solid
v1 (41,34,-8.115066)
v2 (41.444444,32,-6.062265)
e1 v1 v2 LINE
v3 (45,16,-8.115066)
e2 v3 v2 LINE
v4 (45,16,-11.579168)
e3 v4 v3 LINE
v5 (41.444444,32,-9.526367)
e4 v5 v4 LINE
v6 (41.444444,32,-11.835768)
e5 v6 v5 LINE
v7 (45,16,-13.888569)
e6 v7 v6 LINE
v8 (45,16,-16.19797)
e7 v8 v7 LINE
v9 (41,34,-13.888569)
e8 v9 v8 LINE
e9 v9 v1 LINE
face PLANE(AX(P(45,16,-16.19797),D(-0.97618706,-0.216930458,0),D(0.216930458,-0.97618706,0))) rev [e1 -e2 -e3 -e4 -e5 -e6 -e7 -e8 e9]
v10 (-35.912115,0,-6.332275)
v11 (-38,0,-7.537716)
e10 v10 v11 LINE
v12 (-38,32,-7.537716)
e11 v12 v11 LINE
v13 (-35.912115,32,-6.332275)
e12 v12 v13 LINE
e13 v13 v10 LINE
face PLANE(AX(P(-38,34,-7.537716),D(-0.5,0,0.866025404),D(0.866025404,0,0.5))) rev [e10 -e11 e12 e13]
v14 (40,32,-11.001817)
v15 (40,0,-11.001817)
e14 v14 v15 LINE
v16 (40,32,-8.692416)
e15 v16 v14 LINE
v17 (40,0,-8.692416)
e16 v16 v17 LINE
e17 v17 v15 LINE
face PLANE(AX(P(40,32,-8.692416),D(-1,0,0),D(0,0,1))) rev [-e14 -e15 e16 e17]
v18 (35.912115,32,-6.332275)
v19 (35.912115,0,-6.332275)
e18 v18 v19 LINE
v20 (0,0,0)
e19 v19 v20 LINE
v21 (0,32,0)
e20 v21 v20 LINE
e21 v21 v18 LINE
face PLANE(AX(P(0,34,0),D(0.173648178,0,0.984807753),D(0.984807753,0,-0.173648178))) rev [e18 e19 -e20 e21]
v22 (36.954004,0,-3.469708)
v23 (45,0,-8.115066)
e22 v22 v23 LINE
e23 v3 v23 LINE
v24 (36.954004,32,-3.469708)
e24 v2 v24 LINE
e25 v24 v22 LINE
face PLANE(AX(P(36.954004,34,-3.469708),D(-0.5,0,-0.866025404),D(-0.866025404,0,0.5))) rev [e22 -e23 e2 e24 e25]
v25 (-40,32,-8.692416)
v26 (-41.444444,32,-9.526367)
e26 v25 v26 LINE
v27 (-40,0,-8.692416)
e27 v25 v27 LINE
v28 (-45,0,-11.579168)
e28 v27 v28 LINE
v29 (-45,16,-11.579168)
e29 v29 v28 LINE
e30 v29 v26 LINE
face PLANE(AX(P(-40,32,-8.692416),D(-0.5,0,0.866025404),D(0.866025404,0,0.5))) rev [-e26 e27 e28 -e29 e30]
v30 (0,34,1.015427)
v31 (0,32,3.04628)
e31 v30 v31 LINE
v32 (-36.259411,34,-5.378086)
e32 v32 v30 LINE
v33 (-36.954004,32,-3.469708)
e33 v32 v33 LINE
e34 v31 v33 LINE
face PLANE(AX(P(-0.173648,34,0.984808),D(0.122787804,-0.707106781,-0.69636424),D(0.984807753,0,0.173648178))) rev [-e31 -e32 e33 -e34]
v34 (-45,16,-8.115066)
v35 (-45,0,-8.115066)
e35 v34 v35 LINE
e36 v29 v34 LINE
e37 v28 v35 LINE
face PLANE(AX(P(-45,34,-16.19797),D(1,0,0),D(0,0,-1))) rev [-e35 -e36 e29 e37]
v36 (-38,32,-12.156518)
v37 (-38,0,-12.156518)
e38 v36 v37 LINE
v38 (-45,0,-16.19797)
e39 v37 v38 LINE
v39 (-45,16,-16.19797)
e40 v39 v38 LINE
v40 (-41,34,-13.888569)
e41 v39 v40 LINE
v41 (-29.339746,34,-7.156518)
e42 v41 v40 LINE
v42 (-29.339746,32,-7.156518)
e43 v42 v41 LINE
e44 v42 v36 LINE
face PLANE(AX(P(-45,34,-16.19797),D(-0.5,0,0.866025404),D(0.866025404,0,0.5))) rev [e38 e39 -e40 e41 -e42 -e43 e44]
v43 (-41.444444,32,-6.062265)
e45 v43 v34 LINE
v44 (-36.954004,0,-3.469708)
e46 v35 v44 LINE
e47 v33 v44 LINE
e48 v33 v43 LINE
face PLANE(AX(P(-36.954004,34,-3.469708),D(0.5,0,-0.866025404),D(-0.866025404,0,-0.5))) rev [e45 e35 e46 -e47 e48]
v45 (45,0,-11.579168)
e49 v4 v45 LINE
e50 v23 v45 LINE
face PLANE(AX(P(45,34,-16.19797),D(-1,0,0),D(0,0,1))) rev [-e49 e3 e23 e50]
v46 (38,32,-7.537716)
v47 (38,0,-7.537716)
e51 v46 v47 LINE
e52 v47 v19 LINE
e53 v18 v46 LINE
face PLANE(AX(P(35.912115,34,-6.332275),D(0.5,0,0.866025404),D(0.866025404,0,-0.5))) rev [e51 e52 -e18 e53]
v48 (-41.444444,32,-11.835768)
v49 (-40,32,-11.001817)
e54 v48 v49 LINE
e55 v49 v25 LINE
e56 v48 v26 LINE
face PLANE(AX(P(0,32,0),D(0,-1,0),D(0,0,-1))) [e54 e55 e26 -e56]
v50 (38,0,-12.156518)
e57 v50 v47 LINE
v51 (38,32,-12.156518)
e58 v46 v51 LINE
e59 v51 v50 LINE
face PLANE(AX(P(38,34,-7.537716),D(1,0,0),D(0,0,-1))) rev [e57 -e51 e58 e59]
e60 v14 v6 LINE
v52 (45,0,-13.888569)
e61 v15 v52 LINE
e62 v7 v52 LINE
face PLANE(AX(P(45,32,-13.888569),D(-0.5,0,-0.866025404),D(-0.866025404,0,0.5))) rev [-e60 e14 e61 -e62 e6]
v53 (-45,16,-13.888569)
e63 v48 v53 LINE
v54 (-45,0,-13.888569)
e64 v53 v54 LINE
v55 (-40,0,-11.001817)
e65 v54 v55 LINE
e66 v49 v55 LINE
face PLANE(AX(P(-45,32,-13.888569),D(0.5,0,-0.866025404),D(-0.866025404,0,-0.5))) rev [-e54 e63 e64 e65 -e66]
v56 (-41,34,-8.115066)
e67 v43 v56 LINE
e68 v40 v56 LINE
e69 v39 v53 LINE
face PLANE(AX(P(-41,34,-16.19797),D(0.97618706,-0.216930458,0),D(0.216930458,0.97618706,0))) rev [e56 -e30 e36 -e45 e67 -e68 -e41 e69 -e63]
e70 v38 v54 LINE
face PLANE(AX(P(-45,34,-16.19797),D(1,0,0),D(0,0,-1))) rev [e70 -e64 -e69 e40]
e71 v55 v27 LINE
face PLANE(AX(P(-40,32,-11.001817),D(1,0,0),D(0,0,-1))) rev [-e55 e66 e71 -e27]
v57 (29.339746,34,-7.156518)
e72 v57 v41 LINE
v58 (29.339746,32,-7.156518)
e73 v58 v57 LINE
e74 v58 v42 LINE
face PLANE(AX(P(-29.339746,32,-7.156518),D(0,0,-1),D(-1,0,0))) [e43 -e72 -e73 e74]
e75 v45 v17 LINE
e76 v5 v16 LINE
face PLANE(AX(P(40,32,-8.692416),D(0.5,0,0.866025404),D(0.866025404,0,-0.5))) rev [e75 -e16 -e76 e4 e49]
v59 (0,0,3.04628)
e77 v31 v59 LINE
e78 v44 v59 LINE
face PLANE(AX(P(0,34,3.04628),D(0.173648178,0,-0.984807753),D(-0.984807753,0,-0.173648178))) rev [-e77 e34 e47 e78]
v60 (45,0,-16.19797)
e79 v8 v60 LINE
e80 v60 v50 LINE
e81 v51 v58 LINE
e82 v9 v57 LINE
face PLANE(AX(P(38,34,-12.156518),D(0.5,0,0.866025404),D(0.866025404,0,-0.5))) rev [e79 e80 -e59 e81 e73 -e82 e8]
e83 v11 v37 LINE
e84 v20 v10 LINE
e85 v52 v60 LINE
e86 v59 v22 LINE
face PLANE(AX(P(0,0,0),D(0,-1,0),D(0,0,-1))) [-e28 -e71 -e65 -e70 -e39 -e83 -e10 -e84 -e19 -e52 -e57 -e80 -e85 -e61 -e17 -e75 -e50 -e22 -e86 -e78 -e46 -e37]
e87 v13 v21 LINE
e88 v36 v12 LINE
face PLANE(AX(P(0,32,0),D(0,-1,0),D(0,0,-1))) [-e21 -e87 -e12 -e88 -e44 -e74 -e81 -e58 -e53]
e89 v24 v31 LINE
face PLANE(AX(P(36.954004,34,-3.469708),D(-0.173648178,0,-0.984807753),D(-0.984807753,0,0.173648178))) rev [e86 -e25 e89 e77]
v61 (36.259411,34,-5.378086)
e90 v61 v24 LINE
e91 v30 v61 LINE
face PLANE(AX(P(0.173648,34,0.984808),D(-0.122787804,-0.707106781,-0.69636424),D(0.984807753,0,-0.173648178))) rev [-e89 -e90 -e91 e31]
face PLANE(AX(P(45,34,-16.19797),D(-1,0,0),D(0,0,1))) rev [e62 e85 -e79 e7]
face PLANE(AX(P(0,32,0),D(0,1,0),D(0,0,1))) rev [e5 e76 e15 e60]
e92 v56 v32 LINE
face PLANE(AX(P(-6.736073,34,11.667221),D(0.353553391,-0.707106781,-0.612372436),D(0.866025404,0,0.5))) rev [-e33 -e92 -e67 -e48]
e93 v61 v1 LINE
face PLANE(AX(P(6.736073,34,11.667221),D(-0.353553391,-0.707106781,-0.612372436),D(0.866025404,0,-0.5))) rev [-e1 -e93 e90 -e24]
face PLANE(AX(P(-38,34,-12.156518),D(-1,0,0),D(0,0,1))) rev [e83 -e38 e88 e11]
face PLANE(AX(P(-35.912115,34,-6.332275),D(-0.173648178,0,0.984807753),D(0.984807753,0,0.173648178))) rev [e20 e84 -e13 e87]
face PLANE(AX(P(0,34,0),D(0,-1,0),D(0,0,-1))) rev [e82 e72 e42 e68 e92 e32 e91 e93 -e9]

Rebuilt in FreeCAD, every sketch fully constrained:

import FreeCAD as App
import Part
import Sketcher
from FreeCAD import Vector
Q = App.Units.Quantity


def edges_at(feature, points):
    """Names of the edges that pass closest to the given points."""
    edges = feature.Shape.Edges
    near = lambda p: min(range(len(edges)), key=lambda i: edges[i].distToShape(Part.Vertex(*p))[0])
    return sorted({f"Edge{near(p) + 1}" for p in points})


def add_polygon(sketch, points):
    """Adds a closed chain of lines whose ends are joined by coincident constraints."""
    first, n = sketch.GeometryCount, len(points)
    for a, b in zip(points, points[1:] + points[:1]):
        sketch.addGeometry(Part.LineSegment(App.Vector(*a, 0), App.Vector(*b, 0)), False)
    for i in range(n):
        sketch.addConstraint(Sketcher.Constraint("Coincident", first + i, 2, first + (i + 1) % n, 1))

doc = App.newDocument("Part")
body = doc.addObject("PartDesign::Body", "Body")

# Sketch on XZ plane
sketch1 = body.newObject("Sketcher::SketchObject", "Sketch")
sketch1.AttachmentSupport = (doc.getObject("XZ_Plane"), [""])
sketch1.MapMode = "FlatFace"
add_polygon(sketch1, [(-45, -16.2), (-45, -8.1), (-37, -3.5), (0, 3), (37, -3.5), (45, -8.1), (45, -16.2), (38, -12.2), (38, -7.5), (35.9, -6.3), (0, 0), (-35.9, -6.3), (-38, -7.5), (-38, -12.2)])  # lines 0-13
sketch1.addConstraint([
    Sketcher.Constraint("Vertical", 0),
    Sketcher.Constraint("Vertical", 5),
    Sketcher.Constraint("Vertical", 7),
    Sketcher.Constraint("Vertical", 12),
    Sketcher.Constraint("Coincident", 9, 2, -1, 1),
    Sketcher.Constraint("Symmetric", 1, 2, 3, 2, -2),
    Sketcher.Constraint("Symmetric", 0, 2, 4, 2, -2),
    Sketcher.Constraint("Symmetric", 8, 2, 10, 2, -2),
    Sketcher.Constraint("Symmetric", 7, 2, 11, 2, -2),
    Sketcher.Constraint("PointOnObject", 2, 2, -2),
    Sketcher.Constraint("Parallel", 4, 6),
    Sketcher.Constraint("Parallel", 6, 8),
    Sketcher.Constraint("Parallel", 3, 9),
    Sketcher.Constraint("Parallel", 11, 13),
    Sketcher.Constraint("Horizontal", 6, 2, 12, 2),
    Sketcher.Constraint("Angle", 1, Q("30 deg")),
    Sketcher.Constraint("Angle", 2, Q("10 deg")),
    Sketcher.Constraint("DistanceX", 0, 2, -1, 1, Q("45 mm")),
    Sketcher.Constraint("DistanceX", -1, 1, 6, 2, Q("38 mm")),
    Sketcher.Constraint("Distance", 2, Q("37.524079 mm")),
    Sketcher.Constraint("Distance", 8, Q("2.410882 mm")),
    Sketcher.Constraint("DistanceY", 0, 1, 0, 2, Q("8.082904 mm")),
    Sketcher.Constraint("DistanceY", 7, 1, 7, 2, Q("4.618802 mm")),
])
pad1 = body.newObject("PartDesign::Pad", "Pad")
pad1.Profile = sketch1
pad1.Length = 34
pad1.Reversed = True

# Sketch on XZ plane
sketch2 = body.newObject("Sketcher::SketchObject", "Sketch001")
sketch2.AttachmentSupport = (doc.getObject("XZ_Plane"), [""])
sketch2.MapMode = "FlatFace"
add_polygon(sketch2, [(-40, -8.7), (-45, -11.6), (-45, -13.9), (-40, -11)])  # lines 0-3
add_polygon(sketch2, [(45, -11.6), (40, -8.7), (40, -11), (45, -13.9)])  # lines 4-7
sketch2.addConstraint([
    Sketcher.Constraint("Vertical", 1),
    Sketcher.Constraint("Vertical", 3),
    Sketcher.Constraint("Vertical", 5),
    Sketcher.Constraint("Vertical", 7),
    Sketcher.Constraint("Symmetric", 3, 2, 4, 2, -2),
    Sketcher.Constraint("Symmetric", 1, 2, 6, 2, -2),
    Sketcher.Constraint("Parallel", 0, 2),
    Sketcher.Constraint("Parallel", 4, 6),
    Sketcher.Constraint("Horizontal", 2, 2, 5, 2),
    Sketcher.Constraint("Angle", 0, Q("-150 deg")),
    Sketcher.Constraint("DistanceX", 0, 2, -1, 1, Q("45 mm")),
    Sketcher.Constraint("DistanceX", 2, 2, -1, 1, Q("40 mm")),
    Sketcher.Constraint("DistanceY", 1, 2, 1, 1, Q("2.309401 mm")),
    Sketcher.Constraint("DistanceY", 1, 2, -1, 1, Q("13.888569 mm")),
])
pocket1 = body.newObject("PartDesign::Pocket", "Pocket")
pocket1.Profile = sketch2
pocket1.Length = 32

# Sketch on XZ plane
sketch3 = body.newObject("Sketcher::SketchObject", "Sketch002")
sketch3.AttachmentSupport = (doc.getObject("XZ_Plane"), [""])
sketch3.MapMode = "FlatFace"
sketch3.AttachmentOffset = App.Placement(Vector(0, 0, -34), App.Rotation())
add_polygon(sketch3, [(38, -7.5), (38, -12.2), (29.3, -7.2), (-29.3, -7.2), (-38, -12.2), (-38, -7.5), (-35.9, -6.3), (0, 0), (35.9, -6.3)])  # lines 0-8
sketch3.addConstraint([
    Sketcher.Constraint("Vertical", 0),
    Sketcher.Constraint("Horizontal", 2),
    Sketcher.Constraint("Vertical", 4),
    Sketcher.Constraint("Coincident", 6, 2, -1, 1),
    Sketcher.Constraint("Symmetric", 0, 2, 3, 2, -2),
    Sketcher.Constraint("Symmetric", 5, 2, 7, 2, -2),
    Sketcher.Constraint("Parallel", 3, 5),
    Sketcher.Constraint("Parallel", 1, 8),
    Sketcher.Constraint("Horizontal", 4, 2, 8, 2),
    Sketcher.Constraint("Angle", 1, Q("150 deg")),
    Sketcher.Constraint("Angle", 6, Q("10 deg")),
    Sketcher.Constraint("Distance", 1, Q("10 mm")),
    Sketcher.Constraint("DistanceX", -1, 1, 0, 2, Q("38 mm")),
    Sketcher.Constraint("Distance", 5, Q("2.410882 mm")),
    Sketcher.Constraint("DistanceY", 0, 2, 0, 1, Q("4.618802 mm")),
])
pad2 = body.newObject("PartDesign::Pad", "Pad001")
pad2.Profile = sketch3
pad2.Length = 2
doc.recompute()

chamfer = body.newObject("PartDesign::Chamfer", "Chamfer")
chamfer.Base = (pad2, edges_at(pad2, [
    (-40.977, 34, -5.792),
    (-18.477, 34, -0.212),
    (18.477, 34, -0.212),
    (40.977, 34, -5.792),
]))
chamfer.Size = 2

# Sketch on XY plane
sketch4 = body.newObject("Sketcher::SketchObject", "Sketch003")
sketch4.AttachmentSupport = (doc.getObject("XY_Plane"), [""])
sketch4.MapMode = "FlatFace"
sketch4.AttachmentOffset = App.Placement(Vector(0, 0, -16.19797), App.Rotation())
add_polygon(sketch4, [(-45, 34), (-45, 16), (-41, 34)])  # lines 0-2
add_polygon(sketch4, [(41, 34), (45, 16), (45, 34)])  # lines 3-5
sketch4.addConstraint([
    Sketcher.Constraint("Vertical", 0),
    Sketcher.Constraint("Horizontal", 2),
    Sketcher.Constraint("Vertical", 4),
    Sketcher.Constraint("Horizontal", 5),
    Sketcher.Constraint("Symmetric", 0, 2, 3, 2, -2),
    Sketcher.Constraint("Symmetric", 1, 2, 5, 2, -2),
    Sketcher.Constraint("DistanceX", 2, 2, 2, 1, Q("4 mm")),
    Sketcher.Constraint("DistanceY", 0, 2, 0, 1, Q("18 mm")),
    Sketcher.Constraint("DistanceX", 0, 2, -1, 1, Q("45 mm")),
    Sketcher.Constraint("DistanceY", -1, 1, 0, 2, Q("16 mm")),
])
pocket2 = body.newObject("PartDesign::Pocket", "Pocket001")
pocket2.Profile = sketch4
pocket2.Length = 10.135705
pocket2.Reversed = True

doc.recompute()
